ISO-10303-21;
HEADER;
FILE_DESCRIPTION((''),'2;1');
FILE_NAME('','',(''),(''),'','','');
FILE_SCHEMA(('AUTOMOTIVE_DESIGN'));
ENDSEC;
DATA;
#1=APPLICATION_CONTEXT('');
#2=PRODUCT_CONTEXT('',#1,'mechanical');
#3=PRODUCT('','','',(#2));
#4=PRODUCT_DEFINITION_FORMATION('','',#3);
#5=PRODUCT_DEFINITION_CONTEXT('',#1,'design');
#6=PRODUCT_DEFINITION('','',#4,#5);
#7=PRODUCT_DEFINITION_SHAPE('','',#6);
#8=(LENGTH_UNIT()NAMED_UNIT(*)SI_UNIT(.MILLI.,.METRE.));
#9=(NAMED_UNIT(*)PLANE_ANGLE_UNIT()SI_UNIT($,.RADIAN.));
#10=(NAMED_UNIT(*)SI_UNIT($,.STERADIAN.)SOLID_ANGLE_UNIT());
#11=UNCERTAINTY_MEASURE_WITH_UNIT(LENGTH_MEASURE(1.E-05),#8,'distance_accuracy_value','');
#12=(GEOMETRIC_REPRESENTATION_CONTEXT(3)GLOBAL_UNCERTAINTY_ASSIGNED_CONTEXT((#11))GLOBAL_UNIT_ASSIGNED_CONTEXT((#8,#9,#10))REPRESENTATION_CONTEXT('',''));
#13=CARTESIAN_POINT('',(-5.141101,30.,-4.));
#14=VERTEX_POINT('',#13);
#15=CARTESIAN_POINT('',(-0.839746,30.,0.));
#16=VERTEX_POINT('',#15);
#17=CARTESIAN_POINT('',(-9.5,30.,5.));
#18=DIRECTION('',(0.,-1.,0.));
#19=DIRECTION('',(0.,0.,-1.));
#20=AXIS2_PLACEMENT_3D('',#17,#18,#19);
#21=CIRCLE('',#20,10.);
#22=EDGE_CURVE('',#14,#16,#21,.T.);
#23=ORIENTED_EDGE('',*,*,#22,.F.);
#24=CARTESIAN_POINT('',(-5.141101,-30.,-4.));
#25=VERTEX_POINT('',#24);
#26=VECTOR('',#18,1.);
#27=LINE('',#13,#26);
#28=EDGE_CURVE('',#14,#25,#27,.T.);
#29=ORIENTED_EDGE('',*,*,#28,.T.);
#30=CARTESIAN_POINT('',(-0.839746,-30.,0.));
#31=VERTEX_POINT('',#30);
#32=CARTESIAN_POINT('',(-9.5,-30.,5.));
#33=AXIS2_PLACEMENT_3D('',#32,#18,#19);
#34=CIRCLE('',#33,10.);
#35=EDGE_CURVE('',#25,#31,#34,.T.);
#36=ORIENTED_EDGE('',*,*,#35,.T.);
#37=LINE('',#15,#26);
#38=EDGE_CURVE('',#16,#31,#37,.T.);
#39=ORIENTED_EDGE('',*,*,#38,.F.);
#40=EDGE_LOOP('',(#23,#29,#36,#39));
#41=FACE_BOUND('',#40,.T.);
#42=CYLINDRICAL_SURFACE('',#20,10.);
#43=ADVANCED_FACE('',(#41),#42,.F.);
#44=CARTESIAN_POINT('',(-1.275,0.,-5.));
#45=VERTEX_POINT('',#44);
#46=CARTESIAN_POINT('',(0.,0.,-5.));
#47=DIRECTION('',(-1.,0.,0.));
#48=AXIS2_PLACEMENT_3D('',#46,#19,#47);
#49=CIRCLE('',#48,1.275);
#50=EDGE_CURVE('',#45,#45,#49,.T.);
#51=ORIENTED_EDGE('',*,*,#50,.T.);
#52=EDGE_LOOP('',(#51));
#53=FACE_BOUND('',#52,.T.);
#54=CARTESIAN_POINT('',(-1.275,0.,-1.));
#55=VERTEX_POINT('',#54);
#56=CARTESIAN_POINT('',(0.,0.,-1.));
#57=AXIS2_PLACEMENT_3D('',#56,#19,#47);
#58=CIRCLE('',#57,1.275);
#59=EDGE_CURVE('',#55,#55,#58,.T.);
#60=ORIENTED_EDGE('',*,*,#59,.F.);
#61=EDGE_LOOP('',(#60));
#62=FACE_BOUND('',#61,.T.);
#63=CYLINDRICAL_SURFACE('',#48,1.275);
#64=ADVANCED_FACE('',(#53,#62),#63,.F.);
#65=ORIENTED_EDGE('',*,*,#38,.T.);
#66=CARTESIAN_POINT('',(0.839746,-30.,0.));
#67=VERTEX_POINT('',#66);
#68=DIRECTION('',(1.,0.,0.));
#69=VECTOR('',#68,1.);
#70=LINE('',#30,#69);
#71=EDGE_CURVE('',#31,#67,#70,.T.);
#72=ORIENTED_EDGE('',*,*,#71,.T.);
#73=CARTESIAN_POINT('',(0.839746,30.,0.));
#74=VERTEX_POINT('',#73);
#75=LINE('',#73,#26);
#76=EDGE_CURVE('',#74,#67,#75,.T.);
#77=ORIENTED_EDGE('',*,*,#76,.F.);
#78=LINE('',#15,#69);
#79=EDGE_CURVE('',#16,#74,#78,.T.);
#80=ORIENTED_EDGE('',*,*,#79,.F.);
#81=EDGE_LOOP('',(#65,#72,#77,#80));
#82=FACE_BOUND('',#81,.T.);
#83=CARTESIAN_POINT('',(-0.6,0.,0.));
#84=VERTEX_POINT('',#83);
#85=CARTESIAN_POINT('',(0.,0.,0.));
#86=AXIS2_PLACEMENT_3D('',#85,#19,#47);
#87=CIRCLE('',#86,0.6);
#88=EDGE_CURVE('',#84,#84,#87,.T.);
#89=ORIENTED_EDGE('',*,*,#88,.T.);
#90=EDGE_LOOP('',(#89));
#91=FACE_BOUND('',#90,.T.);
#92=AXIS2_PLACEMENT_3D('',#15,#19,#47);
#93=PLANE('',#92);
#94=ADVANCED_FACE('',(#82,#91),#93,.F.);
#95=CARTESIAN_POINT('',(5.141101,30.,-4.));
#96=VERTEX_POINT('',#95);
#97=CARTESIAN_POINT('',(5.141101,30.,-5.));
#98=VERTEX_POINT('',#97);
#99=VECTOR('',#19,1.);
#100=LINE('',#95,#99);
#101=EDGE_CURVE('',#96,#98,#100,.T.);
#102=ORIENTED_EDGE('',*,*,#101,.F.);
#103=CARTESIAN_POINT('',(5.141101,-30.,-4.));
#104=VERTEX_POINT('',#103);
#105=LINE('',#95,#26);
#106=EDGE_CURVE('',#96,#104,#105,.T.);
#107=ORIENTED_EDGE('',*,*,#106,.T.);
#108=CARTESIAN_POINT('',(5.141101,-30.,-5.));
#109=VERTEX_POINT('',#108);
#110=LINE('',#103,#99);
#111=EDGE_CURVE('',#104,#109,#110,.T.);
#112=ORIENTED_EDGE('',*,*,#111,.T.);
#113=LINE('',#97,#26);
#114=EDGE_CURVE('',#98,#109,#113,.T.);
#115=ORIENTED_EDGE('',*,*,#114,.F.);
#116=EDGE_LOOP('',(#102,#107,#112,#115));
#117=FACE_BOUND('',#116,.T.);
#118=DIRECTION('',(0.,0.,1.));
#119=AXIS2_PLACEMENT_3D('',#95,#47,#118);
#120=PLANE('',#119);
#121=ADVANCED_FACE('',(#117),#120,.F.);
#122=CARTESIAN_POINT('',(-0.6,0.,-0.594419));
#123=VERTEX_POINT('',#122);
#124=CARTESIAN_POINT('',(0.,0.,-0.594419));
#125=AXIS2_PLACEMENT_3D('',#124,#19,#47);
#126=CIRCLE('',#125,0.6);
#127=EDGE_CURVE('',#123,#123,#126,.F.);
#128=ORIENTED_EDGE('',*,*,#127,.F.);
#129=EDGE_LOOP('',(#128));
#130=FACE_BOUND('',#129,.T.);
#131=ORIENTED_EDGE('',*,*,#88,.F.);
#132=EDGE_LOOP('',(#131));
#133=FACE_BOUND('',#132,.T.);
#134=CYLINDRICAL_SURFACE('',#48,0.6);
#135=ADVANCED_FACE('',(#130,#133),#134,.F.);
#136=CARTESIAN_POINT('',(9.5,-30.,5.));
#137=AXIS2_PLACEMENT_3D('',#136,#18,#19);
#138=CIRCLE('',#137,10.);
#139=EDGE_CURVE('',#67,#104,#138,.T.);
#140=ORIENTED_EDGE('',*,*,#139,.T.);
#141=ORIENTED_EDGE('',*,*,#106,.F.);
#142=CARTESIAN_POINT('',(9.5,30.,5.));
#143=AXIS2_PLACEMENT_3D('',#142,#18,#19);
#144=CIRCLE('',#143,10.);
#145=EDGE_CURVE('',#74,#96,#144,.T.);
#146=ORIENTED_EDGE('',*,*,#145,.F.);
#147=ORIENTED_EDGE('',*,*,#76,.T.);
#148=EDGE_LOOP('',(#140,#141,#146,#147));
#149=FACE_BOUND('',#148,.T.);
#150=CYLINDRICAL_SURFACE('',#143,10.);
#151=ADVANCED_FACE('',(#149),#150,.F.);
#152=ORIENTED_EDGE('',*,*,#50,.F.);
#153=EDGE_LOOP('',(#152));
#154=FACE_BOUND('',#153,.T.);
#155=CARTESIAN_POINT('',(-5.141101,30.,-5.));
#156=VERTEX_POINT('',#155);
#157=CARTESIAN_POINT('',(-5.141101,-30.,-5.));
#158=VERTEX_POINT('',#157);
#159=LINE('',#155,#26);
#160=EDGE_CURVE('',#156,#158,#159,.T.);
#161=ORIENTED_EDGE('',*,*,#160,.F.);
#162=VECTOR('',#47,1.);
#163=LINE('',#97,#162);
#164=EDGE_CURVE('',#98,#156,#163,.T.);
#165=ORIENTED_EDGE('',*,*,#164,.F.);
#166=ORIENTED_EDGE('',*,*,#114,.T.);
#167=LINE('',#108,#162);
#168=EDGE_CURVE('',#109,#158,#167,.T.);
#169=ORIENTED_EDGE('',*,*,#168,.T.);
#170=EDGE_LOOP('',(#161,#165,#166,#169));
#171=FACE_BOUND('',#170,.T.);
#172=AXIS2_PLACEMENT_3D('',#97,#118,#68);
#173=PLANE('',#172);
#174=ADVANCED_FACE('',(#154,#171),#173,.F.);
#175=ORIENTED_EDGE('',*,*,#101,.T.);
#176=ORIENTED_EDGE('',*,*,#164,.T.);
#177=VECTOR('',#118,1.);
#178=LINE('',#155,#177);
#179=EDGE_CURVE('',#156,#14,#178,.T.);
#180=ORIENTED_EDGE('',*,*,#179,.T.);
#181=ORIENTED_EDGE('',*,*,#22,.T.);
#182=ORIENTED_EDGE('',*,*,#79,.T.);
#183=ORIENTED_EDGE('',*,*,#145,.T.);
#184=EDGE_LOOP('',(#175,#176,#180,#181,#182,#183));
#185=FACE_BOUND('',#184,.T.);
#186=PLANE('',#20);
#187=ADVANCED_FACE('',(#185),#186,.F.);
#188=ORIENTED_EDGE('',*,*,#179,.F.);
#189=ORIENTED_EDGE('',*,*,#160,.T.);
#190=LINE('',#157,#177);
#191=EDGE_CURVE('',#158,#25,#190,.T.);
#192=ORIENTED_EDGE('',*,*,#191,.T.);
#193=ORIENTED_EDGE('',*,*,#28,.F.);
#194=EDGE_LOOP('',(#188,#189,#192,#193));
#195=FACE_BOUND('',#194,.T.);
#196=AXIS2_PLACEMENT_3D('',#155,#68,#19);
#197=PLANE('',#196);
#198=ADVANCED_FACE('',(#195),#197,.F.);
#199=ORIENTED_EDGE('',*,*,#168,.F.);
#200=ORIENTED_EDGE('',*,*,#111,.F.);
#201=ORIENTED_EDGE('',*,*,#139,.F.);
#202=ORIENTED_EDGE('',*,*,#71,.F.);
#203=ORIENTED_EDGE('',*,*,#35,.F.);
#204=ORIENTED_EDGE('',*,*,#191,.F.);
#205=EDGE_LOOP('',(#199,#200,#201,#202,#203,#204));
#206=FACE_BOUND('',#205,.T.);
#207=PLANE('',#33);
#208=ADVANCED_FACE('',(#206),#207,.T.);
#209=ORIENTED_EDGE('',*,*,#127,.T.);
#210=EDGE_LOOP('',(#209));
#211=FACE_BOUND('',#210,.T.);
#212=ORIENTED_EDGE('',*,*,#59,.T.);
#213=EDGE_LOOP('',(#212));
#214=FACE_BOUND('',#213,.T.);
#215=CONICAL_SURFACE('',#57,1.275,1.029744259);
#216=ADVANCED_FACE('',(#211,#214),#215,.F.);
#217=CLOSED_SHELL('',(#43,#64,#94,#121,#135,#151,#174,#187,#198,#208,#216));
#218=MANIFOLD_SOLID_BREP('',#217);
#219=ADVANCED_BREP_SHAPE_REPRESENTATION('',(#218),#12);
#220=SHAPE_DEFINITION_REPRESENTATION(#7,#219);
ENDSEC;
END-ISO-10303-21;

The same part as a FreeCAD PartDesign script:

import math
import FreeCAD as App
import Part
import Sketcher
from FreeCAD import Vector
Q = App.Units.Quantity

doc = App.newDocument("Part")
params = doc.addObject("Spreadsheet::Sheet", "Params")
for row, (alias, value) in enumerate([
    ("sketch1_radius", "10 mm"),
    ("sketch1_height", "1 mm"),
    ("pad1_length", "60 mm"),
    ("sketch2_diameter", "2.55 mm"),
    ("hole_diameter", "2.55 mm"),
    ("hole_depth", "4 mm"),
    ("sketch3_diameter", "1.2 mm"),
    ("hole2_diameter", "1.2 mm"),
    ("hole2_depth", "6.45 mm"),
], start=1):
    params.set(f"A{row}", alias)
    params.set(f"B{row}", "=" + value)
    params.setAlias(f"B{row}", alias)

body = doc.addObject("PartDesign::Body", "Body")

sketch1 = body.newObject("Sketcher::SketchObject", "Sketch")
sketch1.AttachmentSupport = (doc.getObject("XZ_Plane"), [""])
sketch1.MapMode = "FlatFace"
sketch1.addGeometry([
    Part.LineSegment(Vector(-0.8, 0, 0), Vector(0.8, 0, 0)),
    Part.ArcOfCircle(Part.Circle(Vector(9.5, 5, 0), Vector(0, 0, 1), 10), math.radians(-150), math.radians(-116)),
    Part.LineSegment(Vector(5.1, -4, 0), Vector(5.1, -5, 0)),
    Part.LineSegment(Vector(5.1, -5, 0), Vector(-5.1, -5, 0)),
    Part.LineSegment(Vector(-5.1, -5, 0), Vector(-5.1, -4, 0)),
    Part.ArcOfCircle(Part.Circle(Vector(-9.5, 5, 0), Vector(0, 0, 1), 10), math.radians(-64), math.radians(-30)),
], False)
sketch1.addConstraint([
    Sketcher.Constraint("Coincident", 0, 2, 1, 1),
    Sketcher.Constraint("Coincident", 1, 2, 2, 1),
    Sketcher.Constraint("Coincident", 2, 2, 3, 1),
    Sketcher.Constraint("Coincident", 3, 2, 4, 1),
    Sketcher.Constraint("Coincident", 4, 2, 5, 1),
    Sketcher.Constraint("Coincident", 5, 2, 0, 1),
    Sketcher.Constraint("Horizontal", 0),
    Sketcher.Constraint("Vertical", 2),
    Sketcher.Constraint("Horizontal", 3),
    Sketcher.Constraint("Vertical", 4),
    Sketcher.Constraint("Equal", 1, 5),
    Sketcher.Constraint("Symmetric", 0, 2, 5, 2, -1, 1),
    Sketcher.Constraint("Symmetric", 1, 2, 4, 2, -2),
    Sketcher.Constraint("Radius", 1, Q("10 mm")),
    Sketcher.Constraint("DistanceY", 2, 2, 2, 1, Q("1 mm")),
    Sketcher.Constraint("DistanceY", -1, 1, 1, 3, Q("5 mm")),
    Sketcher.Constraint("DistanceY", 1, 2, -1, 1, Q("4 mm")),
    Sketcher.Constraint("DistanceX", 5, 3, 1, 3, Q("19 mm")),
])
sketch1.setExpression("Constraints[13]", "Params.sketch1_radius")
sketch1.setExpression("Constraints[14]", "Params.sketch1_height")
pad1 = body.newObject("PartDesign::Pad", "Pad")
pad1.Profile = sketch1
pad1.setExpression("Length", "Params.pad1_length")
pad1.Midplane = True

sketch2 = body.newObject("Sketcher::SketchObject", "Sketch001")
sketch2.AttachmentSupport = (doc.getObject("XY_Plane"), [""])
sketch2.MapMode = "FlatFace"
sketch2.AttachmentOffset = App.Placement(Vector(0, 0, -5), App.Rotation())
sketch2.addGeometry(Part.Circle(Vector(0, 0, 0), Vector(0, 0, 1), 1.3), False)
sketch2.addConstraint([
    Sketcher.Constraint("Coincident", 0, 3, -1, 1),
    Sketcher.Constraint("Diameter", 0, Q("2.55 mm")),
])
sketch2.setExpression("Constraints[1]", "Params.sketch2_diameter")
doc.recompute()
hole = body.newObject("PartDesign::Hole", "Hole")
hole.Profile = sketch2
hole.ThreadType = "None"
hole.setExpression("Diameter", "Params.hole_diameter")
hole.DepthType = "Dimension"
hole.setExpression("Depth", "Params.hole_depth")
hole.DrillPoint = "Angled"
hole.DrillPointAngle = 118
hole.Reversed = True

sketch3 = body.newObject("Sketcher::SketchObject", "Sketch002")
sketch3.AttachmentSupport = (doc.getObject("XY_Plane"), [""])
sketch3.MapMode = "FlatFace"
sketch3.AttachmentOffset = App.Placement(Vector(0, 0, -5), App.Rotation())
sketch3.addGeometry(Part.Circle(Vector(0, 0, 0), Vector(0, 0, 1), 0.6), False)
sketch3.addConstraint([
    Sketcher.Constraint("Coincident", 0, 3, -1, 1),
    Sketcher.Constraint("Diameter", 0, Q("1.2 mm")),
])
sketch3.setExpression("Constraints[1]", "Params.sketch3_diameter")
doc.recompute()
hole2 = body.newObject("PartDesign::Hole", "Hole001")
hole2.Profile = sketch3
hole2.ThreadType = "None"
hole2.setExpression("Diameter", "Params.hole2_diameter")
hole2.DepthType = "Dimension"
hole2.setExpression("Depth", "Params.hole2_depth")
hole2.DrillPoint = "Angled"
hole2.DrillPointAngle = 118
hole2.Reversed = True

doc.recompute()
